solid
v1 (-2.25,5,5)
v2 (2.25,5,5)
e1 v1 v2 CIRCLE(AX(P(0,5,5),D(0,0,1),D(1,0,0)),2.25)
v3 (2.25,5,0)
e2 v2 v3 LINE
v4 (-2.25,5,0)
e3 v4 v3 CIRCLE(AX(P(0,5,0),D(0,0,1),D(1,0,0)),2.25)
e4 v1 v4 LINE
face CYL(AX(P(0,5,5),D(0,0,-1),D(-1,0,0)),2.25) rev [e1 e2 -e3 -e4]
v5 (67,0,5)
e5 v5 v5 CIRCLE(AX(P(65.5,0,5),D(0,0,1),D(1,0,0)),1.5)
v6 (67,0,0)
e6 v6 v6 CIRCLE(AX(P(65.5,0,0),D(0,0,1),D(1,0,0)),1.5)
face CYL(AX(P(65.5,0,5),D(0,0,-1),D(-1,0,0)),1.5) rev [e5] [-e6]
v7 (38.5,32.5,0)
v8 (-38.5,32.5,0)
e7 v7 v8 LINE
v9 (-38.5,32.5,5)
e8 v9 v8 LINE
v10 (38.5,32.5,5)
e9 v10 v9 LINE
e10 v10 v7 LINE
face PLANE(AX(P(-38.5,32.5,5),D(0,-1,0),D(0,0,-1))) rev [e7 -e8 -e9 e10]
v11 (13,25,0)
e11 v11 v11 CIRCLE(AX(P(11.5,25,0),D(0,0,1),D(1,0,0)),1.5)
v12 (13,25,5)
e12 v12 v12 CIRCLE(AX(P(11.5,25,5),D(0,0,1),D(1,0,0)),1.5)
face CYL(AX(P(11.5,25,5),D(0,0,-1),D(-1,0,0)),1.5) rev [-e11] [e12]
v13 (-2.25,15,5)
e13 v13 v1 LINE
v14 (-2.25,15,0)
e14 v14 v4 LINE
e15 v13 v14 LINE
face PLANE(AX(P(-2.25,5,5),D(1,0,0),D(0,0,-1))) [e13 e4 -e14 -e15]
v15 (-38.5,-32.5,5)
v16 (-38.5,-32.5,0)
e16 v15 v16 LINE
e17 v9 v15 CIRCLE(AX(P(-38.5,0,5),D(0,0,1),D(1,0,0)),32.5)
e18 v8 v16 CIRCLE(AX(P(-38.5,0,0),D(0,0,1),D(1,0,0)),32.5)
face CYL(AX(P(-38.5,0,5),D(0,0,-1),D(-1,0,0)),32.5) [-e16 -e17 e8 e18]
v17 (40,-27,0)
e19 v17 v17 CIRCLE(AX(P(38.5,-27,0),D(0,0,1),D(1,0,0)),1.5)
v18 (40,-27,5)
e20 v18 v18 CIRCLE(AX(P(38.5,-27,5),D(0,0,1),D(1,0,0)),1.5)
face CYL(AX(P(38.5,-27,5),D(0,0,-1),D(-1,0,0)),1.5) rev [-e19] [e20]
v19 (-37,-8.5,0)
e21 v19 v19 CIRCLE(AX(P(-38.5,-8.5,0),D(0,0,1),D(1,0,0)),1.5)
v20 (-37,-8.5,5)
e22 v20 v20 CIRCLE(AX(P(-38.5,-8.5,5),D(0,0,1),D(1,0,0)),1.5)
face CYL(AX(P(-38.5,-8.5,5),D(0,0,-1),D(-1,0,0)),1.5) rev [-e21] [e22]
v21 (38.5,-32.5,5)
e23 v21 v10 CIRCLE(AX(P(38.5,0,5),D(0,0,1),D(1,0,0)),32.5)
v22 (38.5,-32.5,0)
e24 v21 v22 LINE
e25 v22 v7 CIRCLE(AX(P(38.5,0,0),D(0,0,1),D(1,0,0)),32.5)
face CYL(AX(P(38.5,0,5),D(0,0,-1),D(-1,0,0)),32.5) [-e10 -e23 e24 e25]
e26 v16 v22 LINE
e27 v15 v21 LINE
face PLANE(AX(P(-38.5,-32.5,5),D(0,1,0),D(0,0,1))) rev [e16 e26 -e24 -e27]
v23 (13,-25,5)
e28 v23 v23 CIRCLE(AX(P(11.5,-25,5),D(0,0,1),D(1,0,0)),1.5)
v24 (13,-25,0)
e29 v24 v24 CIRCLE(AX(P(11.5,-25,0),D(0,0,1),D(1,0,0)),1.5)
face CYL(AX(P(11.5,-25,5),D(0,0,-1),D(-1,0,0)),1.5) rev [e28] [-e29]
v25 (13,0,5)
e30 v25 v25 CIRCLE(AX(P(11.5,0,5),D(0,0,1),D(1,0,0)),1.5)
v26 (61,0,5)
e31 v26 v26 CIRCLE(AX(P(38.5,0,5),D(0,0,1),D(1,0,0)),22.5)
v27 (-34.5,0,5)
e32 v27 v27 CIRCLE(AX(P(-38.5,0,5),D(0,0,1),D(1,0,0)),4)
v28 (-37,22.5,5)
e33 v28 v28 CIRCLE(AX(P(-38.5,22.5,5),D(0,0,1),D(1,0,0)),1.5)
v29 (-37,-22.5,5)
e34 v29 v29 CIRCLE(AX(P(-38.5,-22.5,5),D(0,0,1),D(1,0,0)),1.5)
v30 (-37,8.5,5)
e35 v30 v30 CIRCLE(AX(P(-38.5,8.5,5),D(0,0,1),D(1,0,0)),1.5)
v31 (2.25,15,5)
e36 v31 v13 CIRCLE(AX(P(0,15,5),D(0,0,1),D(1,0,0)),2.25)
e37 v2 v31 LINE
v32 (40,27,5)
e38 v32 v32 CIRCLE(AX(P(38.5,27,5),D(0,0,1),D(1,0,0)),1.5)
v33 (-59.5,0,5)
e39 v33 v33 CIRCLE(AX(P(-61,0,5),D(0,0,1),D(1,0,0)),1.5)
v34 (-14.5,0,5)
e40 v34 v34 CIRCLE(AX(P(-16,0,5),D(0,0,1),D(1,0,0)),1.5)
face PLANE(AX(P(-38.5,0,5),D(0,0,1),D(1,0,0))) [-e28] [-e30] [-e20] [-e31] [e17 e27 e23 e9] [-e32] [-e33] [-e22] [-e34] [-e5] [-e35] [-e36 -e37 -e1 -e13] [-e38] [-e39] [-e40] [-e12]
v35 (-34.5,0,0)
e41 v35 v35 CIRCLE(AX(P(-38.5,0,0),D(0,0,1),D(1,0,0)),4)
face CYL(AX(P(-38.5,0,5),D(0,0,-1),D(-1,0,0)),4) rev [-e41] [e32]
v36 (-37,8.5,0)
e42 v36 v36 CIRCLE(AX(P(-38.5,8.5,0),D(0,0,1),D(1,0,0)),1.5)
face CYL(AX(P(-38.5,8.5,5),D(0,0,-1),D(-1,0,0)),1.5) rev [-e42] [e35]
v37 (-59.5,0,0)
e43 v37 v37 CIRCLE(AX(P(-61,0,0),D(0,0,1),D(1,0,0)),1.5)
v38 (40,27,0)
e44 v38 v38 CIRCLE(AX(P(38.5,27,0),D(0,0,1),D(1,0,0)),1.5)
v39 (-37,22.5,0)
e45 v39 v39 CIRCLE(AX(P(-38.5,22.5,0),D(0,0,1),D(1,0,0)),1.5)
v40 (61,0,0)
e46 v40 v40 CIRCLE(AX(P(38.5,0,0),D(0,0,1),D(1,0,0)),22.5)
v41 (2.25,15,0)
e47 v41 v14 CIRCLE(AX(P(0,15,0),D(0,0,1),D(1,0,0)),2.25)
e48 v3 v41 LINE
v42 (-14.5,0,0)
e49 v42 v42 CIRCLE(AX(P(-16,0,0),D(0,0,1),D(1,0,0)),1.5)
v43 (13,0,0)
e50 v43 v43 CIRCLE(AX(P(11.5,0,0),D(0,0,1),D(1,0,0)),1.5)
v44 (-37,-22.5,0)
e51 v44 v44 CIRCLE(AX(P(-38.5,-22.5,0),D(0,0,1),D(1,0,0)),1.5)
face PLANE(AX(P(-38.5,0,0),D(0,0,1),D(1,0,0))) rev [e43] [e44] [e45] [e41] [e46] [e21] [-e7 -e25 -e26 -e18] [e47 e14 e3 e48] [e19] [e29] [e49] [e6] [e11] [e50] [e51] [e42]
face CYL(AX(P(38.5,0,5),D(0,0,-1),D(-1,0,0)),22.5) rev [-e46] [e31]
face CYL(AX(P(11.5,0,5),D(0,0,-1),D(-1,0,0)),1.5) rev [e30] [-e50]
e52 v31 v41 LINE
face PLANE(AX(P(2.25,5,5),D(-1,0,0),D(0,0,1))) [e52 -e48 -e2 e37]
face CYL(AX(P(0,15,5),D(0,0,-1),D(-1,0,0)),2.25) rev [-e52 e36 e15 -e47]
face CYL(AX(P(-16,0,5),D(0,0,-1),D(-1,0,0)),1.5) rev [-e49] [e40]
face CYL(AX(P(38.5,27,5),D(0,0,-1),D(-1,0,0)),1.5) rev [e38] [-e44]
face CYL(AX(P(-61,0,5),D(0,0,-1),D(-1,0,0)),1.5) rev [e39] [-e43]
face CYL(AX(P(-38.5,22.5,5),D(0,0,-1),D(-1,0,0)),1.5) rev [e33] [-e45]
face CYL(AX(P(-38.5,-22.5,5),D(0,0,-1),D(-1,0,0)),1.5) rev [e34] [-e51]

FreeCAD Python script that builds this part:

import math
import FreeCAD as App
import Part
import Sketcher
Q = App.Units.Quantity

doc = App.newDocument("Part")
params = doc.addObject("Spreadsheet::Sheet", "Params")
for row, (alias, value) in enumerate([
    ("sketch1_diameter", "3 mm"),
    ("sketch1_diameter2", "45 mm"),
    ("sketch1_diameter3", "8 mm"),
    ("sketch1_radius", "32.5 mm"),
    ("sketch1_width", "77 mm"),
    ("pad1_length", "5 mm"),
], start=1):
    params.set(f"A{row}", alias)
    params.set(f"B{row}", "=" + value)
    params.setAlias(f"B{row}", alias)

body = doc.addObject("PartDesign::Body", "Body")

# Sketch on XY plane
sketch1 = body.newObject("Sketcher::SketchObject", "Sketch")
sketch1.AttachmentSupport = (doc.getObject("XY_Plane"), [""])
sketch1.MapMode = "FlatFace"
sketch1.addGeometry([
    Part.LineSegment(App.Vector(38.5, 32.5, 0), App.Vector(-38.5, 32.5, 0)),  # 0
    Part.ArcOfCircle(Part.Circle(App.Vector(-38.5, 0, 0), App.Vector(0, 0, 1), 32.5), math.radians(90), math.radians(270)),  # 1
    Part.LineSegment(App.Vector(-38.5, -32.5, 0), App.Vector(38.5, -32.5, 0)),  # 2
    Part.ArcOfCircle(Part.Circle(App.Vector(38.5, 0, 0), App.Vector(0, 0, 1), 32.5), math.radians(-90), math.radians(90)),  # 3
    Part.Circle(App.Vector(38.5, -27, 0), App.Vector(0, 0, 1), 1.5),  # 4
    Part.Circle(App.Vector(11.5, -25, 0), App.Vector(0, 0, 1), 1.5),  # 5
    Part.Circle(App.Vector(-38.5, -22.5, 0), App.Vector(0, 0, 1), 1.5),  # 6
    Part.Circle(App.Vector(-38.5, -8.5, 0), App.Vector(0, 0, 1), 1.5),  # 7
    Part.Circle(App.Vector(65.5, 0, 0), App.Vector(0, 0, 1), 1.5),  # 8
    Part.Circle(App.Vector(38.5, 0, 0), App.Vector(0, 0, 1), 22.5),  # 9
    Part.Circle(App.Vector(11.5, 0, 0), App.Vector(0, 0, 1), 1.5),  # 10
    Part.Circle(App.Vector(38.5, 27, 0), App.Vector(0, 0, 1), 1.5),  # 11
    Part.Circle(App.Vector(11.5, 25, 0), App.Vector(0, 0, 1), 1.5),  # 12
    Part.Circle(App.Vector(-16, 0, 0), App.Vector(0, 0, 1), 1.5),  # 13
    Part.LineSegment(App.Vector(-2.25, 5, 0), App.Vector(-2.25, 15, 0)),  # 14
    Part.ArcOfCircle(Part.Circle(App.Vector(0, 15, 0), App.Vector(0, 0, 1), 2.25), math.radians(0), math.radians(180)),  # 15
    Part.LineSegment(App.Vector(2.25, 15, 0), App.Vector(2.25, 5, 0)),  # 16
    Part.ArcOfCircle(Part.Circle(App.Vector(0, 5, 0), App.Vector(0, 0, 1), 2.25), math.radians(180), math.radians(360)),  # 17
    Part.Circle(App.Vector(-38.5, 0, 0), App.Vector(0, 0, 1), 4),  # 18
    Part.Circle(App.Vector(-61, 0, 0), App.Vector(0, 0, 1), 1.5),  # 19
    Part.Circle(App.Vector(-38.5, 8.5, 0), App.Vector(0, 0, 1), 1.5),  # 20
    Part.Circle(App.Vector(-38.5, 22.5, 0), App.Vector(0, 0, 1), 1.5),  # 21
], False)
sketch1.addConstraint([
    Sketcher.Constraint("Tangent", 0, 2, 1, 1),
    Sketcher.Constraint("Tangent", 1, 2, 2, 1),
    Sketcher.Constraint("Tangent", 2, 2, 3, 1),
    Sketcher.Constraint("Tangent", 3, 2, 0, 1),
    Sketcher.Constraint("Tangent", 14, 2, 15, 2),
    Sketcher.Constraint("Tangent", 15, 1, 16, 1),
    Sketcher.Constraint("Tangent", 16, 2, 17, 2),
    Sketcher.Constraint("Tangent", 17, 1, 14, 1),
    Sketcher.Constraint("Horizontal", 0),
    Sketcher.Constraint("Horizontal", 2),
    Sketcher.Constraint("Vertical", 14),
    Sketcher.Constraint("Vertical", 16),
    Sketcher.Constraint("Coincident", 9, 3, 3, 3),
    Sketcher.Constraint("Coincident", 18, 3, 1, 3),
    Sketcher.Constraint("Equal", 4, 5),
    Sketcher.Constraint("Equal", 5, 6),
    Sketcher.Constraint("Equal", 6, 7),
    Sketcher.Constraint("Equal", 7, 8),
    Sketcher.Constraint("Equal", 8, 10),
    Sketcher.Constraint("Equal", 10, 11),
    Sketcher.Constraint("Equal", 11, 12),
    Sketcher.Constraint("Equal", 12, 13),
    Sketcher.Constraint("Equal", 13, 19),
    Sketcher.Constraint("Equal", 19, 20),
    Sketcher.Constraint("Equal", 20, 21),
    Sketcher.Constraint("Symmetric", 1, 3, 3, 3, -1, 1),
    Sketcher.Constraint("Symmetric", 4, 3, 11, 3, -1),
    Sketcher.Constraint("Symmetric", 5, 3, 12, 3, -1),
    Sketcher.Constraint("Symmetric", 7, 3, 20, 3, -1),
    Sketcher.Constraint("Symmetric", 6, 3, 21, 3, -1),
    Sketcher.Constraint("PointOnObject", 8, 3, -1),
    Sketcher.Constraint("PointOnObject", 10, 3, -1),
    Sketcher.Constraint("PointOnObject", 13, 3, -1),
    Sketcher.Constraint("PointOnObject", 15, 3, -2),
    Sketcher.Constraint("PointOnObject", 19, 3, -1),
    Sketcher.Constraint("Vertical", 3, 3, 4, 3),
    Sketcher.Constraint("Vertical", 1, 3, 6, 3),
    Sketcher.Constraint("Vertical", 6, 3, 7, 3),
    Sketcher.Constraint("Vertical", 5, 3, 10, 3),
    Sketcher.Constraint("Diameter", 4, Q("3 mm")),
    Sketcher.Constraint("Diameter", 9, Q("45 mm")),
    Sketcher.Constraint("Diameter", 18, Q("8 mm")),
    Sketcher.Constraint("Radius", 1, Q("32.5 mm")),
    Sketcher.Constraint("DistanceX", 0, 2, 0, 1, Q("77 mm")),
    Sketcher.Constraint("DistanceY", 14, 1, 14, 2, Q("10 mm")),
    Sketcher.Constraint("Radius", 15, Q("2.25 mm")),
    Sketcher.Constraint("DistanceY", 4, 3, -1, 1, Q("27 mm")),
    Sketcher.Constraint("DistanceY", 5, 3, -1, 1, Q("25 mm")),
    Sketcher.Constraint("DistanceX", 13, 3, -1, 1, Q("16 mm")),
    Sketcher.Constraint("DistanceY", -1, 1, 15, 3, Q("15 mm")),
    Sketcher.Constraint("DistanceX", 19, 3, -1, 1, Q("61 mm")),
    Sketcher.Constraint("DistanceX", 5, 3, 4, 3, Q("27 mm")),
    Sketcher.Constraint("DistanceY", 6, 3, 7, 3, Q("14 mm")),
    Sketcher.Constraint("DistanceX", 3, 3, 8, 3, Q("27 mm")),
    Sketcher.Constraint("DistanceY", 7, 3, 20, 3, Q("17 mm")),
])
sketch1.setExpression("Constraints[39]", "Params.sketch1_diameter")
sketch1.setExpression("Constraints[40]", "Params.sketch1_diameter2")
sketch1.setExpression("Constraints[41]", "Params.sketch1_diameter3")
sketch1.setExpression("Constraints[42]", "Params.sketch1_radius")
sketch1.setExpression("Constraints[43]", "Params.sketch1_width")
pad1 = body.newObject("PartDesign::Pad", "Pad")
pad1.Profile = sketch1
pad1.setExpression("Length", "Params.pad1_length")

doc.recompute()
